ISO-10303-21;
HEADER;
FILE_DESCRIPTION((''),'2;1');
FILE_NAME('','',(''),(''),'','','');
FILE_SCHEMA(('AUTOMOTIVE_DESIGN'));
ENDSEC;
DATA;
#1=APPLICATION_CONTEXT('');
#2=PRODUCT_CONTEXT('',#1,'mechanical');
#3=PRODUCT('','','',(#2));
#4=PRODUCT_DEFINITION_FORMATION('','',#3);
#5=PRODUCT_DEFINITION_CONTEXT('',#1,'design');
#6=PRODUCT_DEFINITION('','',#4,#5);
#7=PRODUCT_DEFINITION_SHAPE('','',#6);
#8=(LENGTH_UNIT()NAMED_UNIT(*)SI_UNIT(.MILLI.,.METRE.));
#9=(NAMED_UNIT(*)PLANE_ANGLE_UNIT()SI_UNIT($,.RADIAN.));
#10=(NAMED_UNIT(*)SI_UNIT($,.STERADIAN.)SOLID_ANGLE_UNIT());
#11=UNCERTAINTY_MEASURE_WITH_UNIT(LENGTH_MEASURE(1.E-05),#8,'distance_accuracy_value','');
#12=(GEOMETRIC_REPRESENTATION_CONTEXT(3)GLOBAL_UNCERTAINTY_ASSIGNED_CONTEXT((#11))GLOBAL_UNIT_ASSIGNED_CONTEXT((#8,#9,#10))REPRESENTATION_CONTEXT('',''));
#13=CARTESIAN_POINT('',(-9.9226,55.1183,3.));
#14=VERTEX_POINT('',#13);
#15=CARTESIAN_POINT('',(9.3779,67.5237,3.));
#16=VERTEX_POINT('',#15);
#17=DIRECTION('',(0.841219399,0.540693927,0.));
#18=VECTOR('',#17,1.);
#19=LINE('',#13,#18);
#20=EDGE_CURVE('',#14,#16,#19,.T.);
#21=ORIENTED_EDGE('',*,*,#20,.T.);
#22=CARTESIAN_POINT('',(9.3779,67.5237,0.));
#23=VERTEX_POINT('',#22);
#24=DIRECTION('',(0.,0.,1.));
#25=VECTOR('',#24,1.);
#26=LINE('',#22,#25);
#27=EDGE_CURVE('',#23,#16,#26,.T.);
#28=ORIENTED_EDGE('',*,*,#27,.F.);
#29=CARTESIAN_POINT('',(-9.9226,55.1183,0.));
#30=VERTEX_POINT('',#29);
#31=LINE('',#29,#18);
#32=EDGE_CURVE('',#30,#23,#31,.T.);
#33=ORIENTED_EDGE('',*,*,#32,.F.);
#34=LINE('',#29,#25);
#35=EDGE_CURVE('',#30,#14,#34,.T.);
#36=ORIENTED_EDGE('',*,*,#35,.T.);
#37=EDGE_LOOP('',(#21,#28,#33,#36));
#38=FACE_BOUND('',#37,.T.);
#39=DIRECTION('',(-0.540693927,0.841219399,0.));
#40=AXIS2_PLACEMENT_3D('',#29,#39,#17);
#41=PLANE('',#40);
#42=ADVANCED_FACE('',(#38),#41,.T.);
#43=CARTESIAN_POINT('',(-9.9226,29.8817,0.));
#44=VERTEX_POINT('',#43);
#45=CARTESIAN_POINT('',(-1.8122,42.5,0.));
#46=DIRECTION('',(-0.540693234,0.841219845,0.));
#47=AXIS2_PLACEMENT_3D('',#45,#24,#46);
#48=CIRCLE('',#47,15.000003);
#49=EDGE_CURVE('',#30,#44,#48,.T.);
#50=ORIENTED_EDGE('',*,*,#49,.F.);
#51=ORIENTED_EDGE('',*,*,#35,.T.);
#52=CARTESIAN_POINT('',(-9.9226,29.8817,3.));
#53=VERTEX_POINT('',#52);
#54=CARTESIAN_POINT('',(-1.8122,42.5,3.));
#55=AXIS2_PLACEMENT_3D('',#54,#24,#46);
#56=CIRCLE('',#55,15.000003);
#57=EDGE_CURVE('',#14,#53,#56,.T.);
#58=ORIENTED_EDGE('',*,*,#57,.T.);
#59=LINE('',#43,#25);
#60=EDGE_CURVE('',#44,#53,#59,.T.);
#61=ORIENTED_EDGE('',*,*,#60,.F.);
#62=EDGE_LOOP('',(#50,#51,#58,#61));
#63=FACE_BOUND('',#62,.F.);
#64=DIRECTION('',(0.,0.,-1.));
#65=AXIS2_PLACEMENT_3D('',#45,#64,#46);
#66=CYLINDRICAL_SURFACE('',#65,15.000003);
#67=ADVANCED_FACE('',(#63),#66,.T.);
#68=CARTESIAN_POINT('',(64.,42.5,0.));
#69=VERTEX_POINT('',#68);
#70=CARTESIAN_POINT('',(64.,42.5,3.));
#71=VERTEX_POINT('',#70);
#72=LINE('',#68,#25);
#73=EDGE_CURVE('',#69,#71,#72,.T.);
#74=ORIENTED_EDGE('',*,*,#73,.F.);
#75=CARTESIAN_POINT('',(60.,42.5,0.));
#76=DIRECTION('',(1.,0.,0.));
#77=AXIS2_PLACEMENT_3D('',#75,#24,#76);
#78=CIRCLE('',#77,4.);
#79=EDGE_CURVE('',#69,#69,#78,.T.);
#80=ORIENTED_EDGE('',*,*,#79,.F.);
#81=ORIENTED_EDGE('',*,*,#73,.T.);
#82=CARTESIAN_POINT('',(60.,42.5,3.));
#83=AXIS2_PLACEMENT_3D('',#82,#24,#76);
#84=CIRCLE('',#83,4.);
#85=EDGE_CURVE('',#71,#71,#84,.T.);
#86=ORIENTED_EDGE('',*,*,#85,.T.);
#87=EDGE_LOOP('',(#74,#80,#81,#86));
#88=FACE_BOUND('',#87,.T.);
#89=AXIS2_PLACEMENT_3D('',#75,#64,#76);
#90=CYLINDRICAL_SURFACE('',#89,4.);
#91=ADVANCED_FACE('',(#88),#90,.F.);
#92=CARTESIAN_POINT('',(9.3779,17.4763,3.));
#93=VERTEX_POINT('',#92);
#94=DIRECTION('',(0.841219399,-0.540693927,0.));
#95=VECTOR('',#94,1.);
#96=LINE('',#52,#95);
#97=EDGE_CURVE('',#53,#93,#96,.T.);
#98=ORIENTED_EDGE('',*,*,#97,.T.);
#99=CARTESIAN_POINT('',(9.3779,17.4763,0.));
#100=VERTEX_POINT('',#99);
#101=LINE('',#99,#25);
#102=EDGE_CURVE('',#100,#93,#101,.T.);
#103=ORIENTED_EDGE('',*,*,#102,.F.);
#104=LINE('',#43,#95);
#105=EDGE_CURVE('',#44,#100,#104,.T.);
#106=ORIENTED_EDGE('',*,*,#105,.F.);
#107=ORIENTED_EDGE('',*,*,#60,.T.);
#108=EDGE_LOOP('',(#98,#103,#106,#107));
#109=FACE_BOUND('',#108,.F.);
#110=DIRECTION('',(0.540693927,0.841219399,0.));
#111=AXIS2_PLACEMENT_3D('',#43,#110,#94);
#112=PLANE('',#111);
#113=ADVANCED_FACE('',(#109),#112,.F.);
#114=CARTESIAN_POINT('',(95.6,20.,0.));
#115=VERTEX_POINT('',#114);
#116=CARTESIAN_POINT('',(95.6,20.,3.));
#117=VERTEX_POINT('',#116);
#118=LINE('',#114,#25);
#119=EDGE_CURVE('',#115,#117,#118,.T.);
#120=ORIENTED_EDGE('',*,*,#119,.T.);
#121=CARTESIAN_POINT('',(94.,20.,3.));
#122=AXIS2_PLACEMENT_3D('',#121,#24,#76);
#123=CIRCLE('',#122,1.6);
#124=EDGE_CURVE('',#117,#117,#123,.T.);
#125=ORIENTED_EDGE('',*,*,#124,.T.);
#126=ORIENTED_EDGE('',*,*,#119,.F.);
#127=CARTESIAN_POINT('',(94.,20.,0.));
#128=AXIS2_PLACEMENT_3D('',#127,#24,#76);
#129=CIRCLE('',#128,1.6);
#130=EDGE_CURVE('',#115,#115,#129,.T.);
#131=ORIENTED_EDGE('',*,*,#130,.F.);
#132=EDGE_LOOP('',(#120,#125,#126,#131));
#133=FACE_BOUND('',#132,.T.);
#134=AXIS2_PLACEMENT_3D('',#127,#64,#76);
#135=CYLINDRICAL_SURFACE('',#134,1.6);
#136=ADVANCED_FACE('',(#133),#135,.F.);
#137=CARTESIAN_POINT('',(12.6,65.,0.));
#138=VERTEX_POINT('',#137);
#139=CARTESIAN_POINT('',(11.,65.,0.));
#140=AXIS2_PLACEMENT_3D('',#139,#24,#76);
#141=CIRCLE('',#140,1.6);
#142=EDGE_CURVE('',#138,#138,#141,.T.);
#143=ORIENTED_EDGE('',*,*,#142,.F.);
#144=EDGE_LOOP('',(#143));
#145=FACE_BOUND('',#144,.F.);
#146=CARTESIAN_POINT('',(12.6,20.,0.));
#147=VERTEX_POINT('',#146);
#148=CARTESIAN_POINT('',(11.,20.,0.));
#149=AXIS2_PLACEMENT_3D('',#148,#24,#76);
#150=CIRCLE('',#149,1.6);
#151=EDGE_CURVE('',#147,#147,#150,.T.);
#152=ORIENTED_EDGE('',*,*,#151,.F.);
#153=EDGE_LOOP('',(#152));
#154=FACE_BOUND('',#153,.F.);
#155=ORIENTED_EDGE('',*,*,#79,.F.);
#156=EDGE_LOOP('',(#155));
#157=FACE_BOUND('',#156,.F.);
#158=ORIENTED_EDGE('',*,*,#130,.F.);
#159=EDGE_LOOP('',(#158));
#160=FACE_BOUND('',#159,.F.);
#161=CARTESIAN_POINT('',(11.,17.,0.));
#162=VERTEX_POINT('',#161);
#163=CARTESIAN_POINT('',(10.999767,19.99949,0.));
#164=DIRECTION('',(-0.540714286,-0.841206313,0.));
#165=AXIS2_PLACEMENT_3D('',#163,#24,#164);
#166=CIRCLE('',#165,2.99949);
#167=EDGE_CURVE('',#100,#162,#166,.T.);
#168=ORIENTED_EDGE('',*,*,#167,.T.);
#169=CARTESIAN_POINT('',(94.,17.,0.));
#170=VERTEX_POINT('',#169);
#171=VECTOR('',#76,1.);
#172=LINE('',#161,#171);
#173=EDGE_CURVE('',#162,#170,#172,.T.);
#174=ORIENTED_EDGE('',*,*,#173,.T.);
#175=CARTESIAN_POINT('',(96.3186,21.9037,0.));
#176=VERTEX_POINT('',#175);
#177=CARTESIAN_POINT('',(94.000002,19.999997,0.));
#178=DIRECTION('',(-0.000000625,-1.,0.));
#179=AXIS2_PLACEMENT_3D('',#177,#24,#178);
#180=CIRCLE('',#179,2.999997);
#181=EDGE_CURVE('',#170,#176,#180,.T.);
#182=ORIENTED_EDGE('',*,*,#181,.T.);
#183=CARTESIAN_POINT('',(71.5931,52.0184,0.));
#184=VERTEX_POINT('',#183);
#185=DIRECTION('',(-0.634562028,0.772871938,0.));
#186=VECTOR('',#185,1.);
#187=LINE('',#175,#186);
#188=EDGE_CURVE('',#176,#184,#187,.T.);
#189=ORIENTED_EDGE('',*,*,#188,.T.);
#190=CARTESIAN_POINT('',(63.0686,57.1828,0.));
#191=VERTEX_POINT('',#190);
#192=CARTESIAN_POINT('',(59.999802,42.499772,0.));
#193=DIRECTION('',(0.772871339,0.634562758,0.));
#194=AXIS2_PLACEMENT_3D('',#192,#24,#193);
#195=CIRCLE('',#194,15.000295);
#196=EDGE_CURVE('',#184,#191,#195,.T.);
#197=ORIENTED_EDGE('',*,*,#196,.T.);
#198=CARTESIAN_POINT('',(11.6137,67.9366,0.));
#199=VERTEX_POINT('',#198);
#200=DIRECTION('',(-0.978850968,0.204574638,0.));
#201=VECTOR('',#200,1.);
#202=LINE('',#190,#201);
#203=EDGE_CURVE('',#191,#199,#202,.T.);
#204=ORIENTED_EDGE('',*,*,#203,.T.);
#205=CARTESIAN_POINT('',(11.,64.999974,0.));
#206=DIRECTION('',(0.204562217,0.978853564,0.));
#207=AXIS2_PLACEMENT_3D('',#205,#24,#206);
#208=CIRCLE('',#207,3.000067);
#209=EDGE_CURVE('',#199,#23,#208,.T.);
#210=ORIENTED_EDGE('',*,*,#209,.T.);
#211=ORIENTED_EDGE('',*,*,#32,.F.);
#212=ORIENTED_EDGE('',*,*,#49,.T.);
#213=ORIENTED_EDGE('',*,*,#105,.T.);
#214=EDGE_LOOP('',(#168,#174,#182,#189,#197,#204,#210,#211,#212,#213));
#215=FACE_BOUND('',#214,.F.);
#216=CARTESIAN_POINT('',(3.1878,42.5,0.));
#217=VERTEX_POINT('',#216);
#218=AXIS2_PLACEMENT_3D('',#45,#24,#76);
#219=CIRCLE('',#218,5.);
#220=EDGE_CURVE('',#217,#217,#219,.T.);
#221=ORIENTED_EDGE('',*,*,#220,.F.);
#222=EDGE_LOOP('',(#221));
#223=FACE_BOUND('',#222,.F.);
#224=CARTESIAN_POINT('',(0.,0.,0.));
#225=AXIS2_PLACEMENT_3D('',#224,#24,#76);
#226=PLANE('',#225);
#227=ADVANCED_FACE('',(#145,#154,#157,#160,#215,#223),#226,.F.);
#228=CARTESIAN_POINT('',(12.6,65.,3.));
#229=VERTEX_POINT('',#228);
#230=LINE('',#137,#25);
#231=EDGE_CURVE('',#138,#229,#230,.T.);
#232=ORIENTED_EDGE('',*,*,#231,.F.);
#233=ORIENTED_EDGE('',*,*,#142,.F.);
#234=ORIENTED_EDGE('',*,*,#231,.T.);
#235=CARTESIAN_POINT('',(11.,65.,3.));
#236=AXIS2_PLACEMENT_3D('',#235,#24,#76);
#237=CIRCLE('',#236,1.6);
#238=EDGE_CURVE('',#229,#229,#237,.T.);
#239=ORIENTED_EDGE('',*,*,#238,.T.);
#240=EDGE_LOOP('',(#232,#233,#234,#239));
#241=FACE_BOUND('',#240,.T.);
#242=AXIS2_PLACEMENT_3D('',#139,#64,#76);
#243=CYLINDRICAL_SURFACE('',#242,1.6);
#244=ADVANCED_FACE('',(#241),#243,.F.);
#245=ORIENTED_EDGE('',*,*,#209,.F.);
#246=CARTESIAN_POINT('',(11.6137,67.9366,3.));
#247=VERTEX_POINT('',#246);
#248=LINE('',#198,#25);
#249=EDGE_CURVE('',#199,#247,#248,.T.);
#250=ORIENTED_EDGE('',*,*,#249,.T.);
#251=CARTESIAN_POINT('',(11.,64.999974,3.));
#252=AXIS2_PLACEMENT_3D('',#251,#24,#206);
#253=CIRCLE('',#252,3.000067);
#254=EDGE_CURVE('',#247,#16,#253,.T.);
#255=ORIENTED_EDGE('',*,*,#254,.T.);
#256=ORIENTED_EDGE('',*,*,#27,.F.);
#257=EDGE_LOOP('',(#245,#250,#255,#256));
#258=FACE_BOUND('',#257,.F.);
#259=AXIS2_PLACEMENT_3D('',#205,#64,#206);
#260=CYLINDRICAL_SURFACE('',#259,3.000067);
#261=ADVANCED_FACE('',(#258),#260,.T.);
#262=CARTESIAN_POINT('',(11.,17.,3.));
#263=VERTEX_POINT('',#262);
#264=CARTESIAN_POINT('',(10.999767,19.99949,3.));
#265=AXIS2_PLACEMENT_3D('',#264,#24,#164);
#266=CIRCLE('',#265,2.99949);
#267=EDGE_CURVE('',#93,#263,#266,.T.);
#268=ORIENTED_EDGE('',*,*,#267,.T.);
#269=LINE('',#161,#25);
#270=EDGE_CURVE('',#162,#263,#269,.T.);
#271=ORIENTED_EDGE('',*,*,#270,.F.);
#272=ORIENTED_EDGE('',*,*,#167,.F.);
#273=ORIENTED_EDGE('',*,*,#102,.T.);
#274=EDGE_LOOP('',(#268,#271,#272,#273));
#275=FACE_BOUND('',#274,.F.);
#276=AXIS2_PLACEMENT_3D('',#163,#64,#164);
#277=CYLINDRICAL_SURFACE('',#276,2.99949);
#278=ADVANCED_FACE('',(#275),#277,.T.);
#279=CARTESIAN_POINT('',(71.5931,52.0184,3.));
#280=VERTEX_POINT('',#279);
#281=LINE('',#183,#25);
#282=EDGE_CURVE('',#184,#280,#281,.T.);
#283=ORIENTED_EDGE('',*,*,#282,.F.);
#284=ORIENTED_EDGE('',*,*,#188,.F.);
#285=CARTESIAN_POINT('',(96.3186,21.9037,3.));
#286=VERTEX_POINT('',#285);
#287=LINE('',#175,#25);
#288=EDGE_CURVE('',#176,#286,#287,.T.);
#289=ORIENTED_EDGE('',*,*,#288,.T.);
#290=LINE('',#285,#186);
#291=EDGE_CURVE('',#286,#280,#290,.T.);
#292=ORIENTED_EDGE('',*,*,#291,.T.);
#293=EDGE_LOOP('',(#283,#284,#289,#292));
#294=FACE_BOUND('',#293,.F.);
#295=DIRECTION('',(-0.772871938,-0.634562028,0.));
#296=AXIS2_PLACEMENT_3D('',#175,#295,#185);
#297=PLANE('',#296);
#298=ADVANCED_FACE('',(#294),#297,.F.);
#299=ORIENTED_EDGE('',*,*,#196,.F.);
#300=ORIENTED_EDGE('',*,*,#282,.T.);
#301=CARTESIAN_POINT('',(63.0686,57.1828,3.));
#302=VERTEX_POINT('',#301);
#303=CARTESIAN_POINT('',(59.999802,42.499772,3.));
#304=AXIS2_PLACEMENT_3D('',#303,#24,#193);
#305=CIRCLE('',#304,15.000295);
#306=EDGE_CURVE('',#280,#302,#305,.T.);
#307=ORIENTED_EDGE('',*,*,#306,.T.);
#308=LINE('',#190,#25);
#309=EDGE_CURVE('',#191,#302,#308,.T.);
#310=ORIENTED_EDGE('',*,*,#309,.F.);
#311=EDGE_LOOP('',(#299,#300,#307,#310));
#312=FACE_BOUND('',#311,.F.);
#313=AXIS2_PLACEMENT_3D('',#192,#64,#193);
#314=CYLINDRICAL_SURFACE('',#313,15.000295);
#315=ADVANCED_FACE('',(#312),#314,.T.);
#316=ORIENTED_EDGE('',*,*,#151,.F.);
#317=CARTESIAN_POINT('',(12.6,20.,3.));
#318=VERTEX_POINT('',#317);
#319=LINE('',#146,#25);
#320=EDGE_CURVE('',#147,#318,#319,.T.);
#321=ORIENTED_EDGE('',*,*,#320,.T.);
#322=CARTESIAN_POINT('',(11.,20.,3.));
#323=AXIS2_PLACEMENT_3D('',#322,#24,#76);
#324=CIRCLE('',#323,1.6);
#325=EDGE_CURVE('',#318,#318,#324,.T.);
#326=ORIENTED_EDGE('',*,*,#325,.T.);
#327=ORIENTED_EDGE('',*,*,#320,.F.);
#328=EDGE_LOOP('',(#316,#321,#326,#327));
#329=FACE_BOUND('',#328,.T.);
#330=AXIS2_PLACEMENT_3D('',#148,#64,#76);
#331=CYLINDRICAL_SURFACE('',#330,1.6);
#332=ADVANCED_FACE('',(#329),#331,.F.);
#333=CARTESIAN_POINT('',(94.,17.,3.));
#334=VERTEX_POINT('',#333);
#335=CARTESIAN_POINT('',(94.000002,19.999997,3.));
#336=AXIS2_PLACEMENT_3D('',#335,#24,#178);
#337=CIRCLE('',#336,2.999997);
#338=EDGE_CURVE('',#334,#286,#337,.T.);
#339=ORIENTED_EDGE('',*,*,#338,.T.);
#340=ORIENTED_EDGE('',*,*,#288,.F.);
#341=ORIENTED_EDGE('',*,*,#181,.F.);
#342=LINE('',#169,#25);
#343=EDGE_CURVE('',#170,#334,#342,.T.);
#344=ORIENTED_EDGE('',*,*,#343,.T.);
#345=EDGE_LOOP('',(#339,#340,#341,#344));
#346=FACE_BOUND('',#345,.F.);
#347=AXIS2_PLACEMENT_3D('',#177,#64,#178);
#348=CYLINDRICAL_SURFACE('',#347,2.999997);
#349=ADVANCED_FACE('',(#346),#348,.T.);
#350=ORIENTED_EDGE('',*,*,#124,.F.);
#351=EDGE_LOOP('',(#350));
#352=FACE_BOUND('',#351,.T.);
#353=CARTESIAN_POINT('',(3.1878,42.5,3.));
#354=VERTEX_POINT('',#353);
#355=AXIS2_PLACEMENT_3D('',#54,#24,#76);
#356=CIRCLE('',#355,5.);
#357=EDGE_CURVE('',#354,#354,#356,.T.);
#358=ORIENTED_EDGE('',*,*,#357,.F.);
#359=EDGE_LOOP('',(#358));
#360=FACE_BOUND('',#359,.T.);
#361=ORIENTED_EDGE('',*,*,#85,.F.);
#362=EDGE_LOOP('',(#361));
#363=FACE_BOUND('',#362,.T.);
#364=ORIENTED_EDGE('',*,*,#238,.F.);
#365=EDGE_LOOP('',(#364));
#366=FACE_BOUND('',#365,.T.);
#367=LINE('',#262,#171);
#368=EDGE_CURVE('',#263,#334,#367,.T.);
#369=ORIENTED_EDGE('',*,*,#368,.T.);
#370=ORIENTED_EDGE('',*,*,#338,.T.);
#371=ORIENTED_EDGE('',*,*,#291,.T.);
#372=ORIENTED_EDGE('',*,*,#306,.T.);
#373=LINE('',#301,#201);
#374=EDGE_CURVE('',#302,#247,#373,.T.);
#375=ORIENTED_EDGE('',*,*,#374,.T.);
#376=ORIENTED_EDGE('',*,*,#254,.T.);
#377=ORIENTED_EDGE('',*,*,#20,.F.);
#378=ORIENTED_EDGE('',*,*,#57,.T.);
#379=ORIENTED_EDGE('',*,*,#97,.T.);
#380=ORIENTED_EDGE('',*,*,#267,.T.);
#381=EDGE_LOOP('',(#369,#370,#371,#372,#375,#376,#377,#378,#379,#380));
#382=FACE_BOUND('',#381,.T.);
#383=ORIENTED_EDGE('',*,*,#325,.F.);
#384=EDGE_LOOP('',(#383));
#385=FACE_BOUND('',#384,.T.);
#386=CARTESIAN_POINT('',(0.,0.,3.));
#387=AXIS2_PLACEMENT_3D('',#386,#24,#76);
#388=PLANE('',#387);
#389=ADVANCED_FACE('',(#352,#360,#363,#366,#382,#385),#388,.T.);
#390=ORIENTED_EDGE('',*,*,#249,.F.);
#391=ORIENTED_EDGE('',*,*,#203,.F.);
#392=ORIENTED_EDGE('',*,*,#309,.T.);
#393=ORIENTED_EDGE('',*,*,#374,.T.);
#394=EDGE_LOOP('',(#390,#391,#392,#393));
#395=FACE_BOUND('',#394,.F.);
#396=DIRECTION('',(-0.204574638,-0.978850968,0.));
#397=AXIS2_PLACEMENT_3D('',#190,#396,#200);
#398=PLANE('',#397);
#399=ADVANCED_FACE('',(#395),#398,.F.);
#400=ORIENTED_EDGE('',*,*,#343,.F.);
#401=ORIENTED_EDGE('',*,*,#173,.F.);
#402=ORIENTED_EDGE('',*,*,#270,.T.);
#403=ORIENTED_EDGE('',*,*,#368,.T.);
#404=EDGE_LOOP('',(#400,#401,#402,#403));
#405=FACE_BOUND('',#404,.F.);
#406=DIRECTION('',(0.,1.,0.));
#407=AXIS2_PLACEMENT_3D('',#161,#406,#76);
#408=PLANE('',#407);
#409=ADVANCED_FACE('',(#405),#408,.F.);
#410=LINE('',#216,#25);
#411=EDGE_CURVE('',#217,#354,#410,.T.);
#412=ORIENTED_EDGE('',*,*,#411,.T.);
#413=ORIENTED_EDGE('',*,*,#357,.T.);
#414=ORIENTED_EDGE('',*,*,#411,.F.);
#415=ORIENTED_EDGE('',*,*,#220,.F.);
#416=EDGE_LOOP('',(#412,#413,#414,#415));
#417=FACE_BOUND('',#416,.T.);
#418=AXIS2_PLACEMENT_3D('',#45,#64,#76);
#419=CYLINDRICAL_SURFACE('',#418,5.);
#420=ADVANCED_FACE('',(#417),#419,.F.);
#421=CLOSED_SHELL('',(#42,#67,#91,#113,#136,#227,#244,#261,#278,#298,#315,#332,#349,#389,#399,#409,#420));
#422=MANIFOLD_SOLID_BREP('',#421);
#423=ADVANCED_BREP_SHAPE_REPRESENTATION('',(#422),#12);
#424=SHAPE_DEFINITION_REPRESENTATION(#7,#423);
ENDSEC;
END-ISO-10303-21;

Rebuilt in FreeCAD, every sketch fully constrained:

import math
import FreeCAD as App
import Part
import Sketcher
from FreeCAD import Vector
Q = App.Units.Quantity

doc = App.newDocument("Part")
body = doc.addObject("PartDesign::Body", "Body")

sketch1 = doc.addObject("Sketcher::SketchObject", "Sketch")
body.addObject(sketch1)
sketch1.AttachmentSupport = (doc.XY_Plane, [""])
sketch1.MapMode = "FlatFace"
sketch1.addGeometry(Part.LineSegment(Vector(11, 17, 0), Vector(94, 17, 0)), False)
sketch1.addGeometry(Part.ArcOfCircle(Part.Circle(Vector(94, 20, 0), Vector(0, 0, 1), 3), math.radians(-90), math.radians(39)), False)
sketch1.addGeometry(Part.LineSegment(Vector(96.3, 21.9, 0), Vector(71.6, 52, 0)), False)
sketch1.addGeometry(Part.ArcOfCircle(Part.Circle(Vector(60, 42.5, 0), Vector(0, 0, 1), 15), math.radians(39), math.radians(78)), False)
sketch1.addGeometry(Part.LineSegment(Vector(63.1, 57.2, 0), Vector(11.6, 67.9, 0)), False)
sketch1.addGeometry(Part.ArcOfCircle(Part.Circle(Vector(11, 65, 0), Vector(0, 0, 1), 3), math.radians(78), math.radians(123)), False)
sketch1.addGeometry(Part.LineSegment(Vector(9.4, 67.5, 0), Vector(-9.9, 55.1, 0)), False)
sketch1.addGeometry(Part.ArcOfCircle(Part.Circle(Vector(-1.8, 42.5, 0), Vector(0, 0, 1), 15), math.radians(123), math.radians(237)), False)
sketch1.addGeometry(Part.LineSegment(Vector(-9.9, 29.9, 0), Vector(9.4, 17.5, 0)), False)
sketch1.addGeometry(Part.ArcOfCircle(Part.Circle(Vector(11, 20, 0), Vector(0, 0, 1), 3), math.radians(-123), math.radians(-90)), False)
sketch1.addGeometry(Part.Circle(Vector(11, 20, 0), Vector(0, 0, 1), 1.6), False)
sketch1.addGeometry(Part.Circle(Vector(94, 20, 0), Vector(0, 0, 1), 1.6), False)
sketch1.addGeometry(Part.Circle(Vector(-1.8, 42.5, 0), Vector(0, 0, 1), 5), False)
sketch1.addGeometry(Part.Circle(Vector(11, 65, 0), Vector(0, 0, 1), 1.6), False)
sketch1.addGeometry(Part.Circle(Vector(60, 42.5, 0), Vector(0, 0, 1), 4), False)
sketch1.addConstraint(Sketcher.Constraint("Tangent", 0, 2, 1, 1))
sketch1.addConstraint(Sketcher.Constraint("Tangent", 1, 2, 2, 1))
sketch1.addConstraint(Sketcher.Constraint("Tangent", 2, 2, 3, 1))
sketch1.addConstraint(Sketcher.Constraint("Tangent", 3, 2, 4, 1))
sketch1.addConstraint(Sketcher.Constraint("Tangent", 4, 2, 5, 1))
sketch1.addConstraint(Sketcher.Constraint("Tangent", 5, 2, 6, 1))
sketch1.addConstraint(Sketcher.Constraint("Tangent", 6, 2, 7, 1))
sketch1.addConstraint(Sketcher.Constraint("Tangent", 7, 2, 8, 1))
sketch1.addConstraint(Sketcher.Constraint("Tangent", 8, 2, 9, 1))
sketch1.addConstraint(Sketcher.Constraint("Tangent", 9, 2, 0, 1))
sketch1.addConstraint(Sketcher.Constraint("Horizontal", 0))
sketch1.addConstraint(Sketcher.Constraint("Coincident", 10, 3, 9, 3))
sketch1.addConstraint(Sketcher.Constraint("Coincident", 11, 3, 1, 3))
sketch1.addConstraint(Sketcher.Constraint("Coincident", 12, 3, 7, 3))
sketch1.addConstraint(Sketcher.Constraint("Coincident", 13, 3, 5, 3))
sketch1.addConstraint(Sketcher.Constraint("Coincident", 14, 3, 3, 3))
sketch1.addConstraint(Sketcher.Constraint("Equal", 1, 5))
sketch1.addConstraint(Sketcher.Constraint("Equal", 3, 7))
sketch1.addConstraint(Sketcher.Constraint("Equal", 5, 9))
sketch1.addConstraint(Sketcher.Constraint("Equal", 10, 11))
sketch1.addConstraint(Sketcher.Constraint("Equal", 11, 13))
sketch1.addConstraint(Sketcher.Constraint("Horizontal", 3, 3, 7, 3))
sketch1.addConstraint(Sketcher.Constraint("Vertical", 5, 3, 9, 3))
sketch1.addConstraint(Sketcher.Constraint("Vertical", 6, 2, 7, 2))
sketch1.addConstraint(Sketcher.Constraint("Diameter", 12, Q("10 mm")))
sketch1.addConstraint(Sketcher.Constraint("Diameter", 14, Q("8 mm")))
sketch1.addConstraint(Sketcher.Constraint("Radius", 1, Q("3 mm")))
sketch1.addConstraint(Sketcher.Constraint("Radius", 3, Q("15 mm")))
sketch1.addConstraint(Sketcher.Constraint("Diameter", 10, Q("3.2 mm")))
sketch1.addConstraint(Sketcher.Constraint("DistanceX", 0, 1, 0, 2, Q("83 mm")))
sketch1.addConstraint(Sketcher.Constraint("DistanceX", -1, 1, 1, 3, Q("94 mm")))
sketch1.addConstraint(Sketcher.Constraint("DistanceY", -1, 1, 1, 3, Q("20 mm")))
sketch1.addConstraint(Sketcher.Constraint("DistanceX", -1, 1, 3, 3, Q("60 mm")))
sketch1.addConstraint(Sketcher.Constraint("DistanceY", -1, 1, 5, 3, Q("65 mm")))
sketch1.addConstraint(Sketcher.Constraint("Angle", 6, Q("-147.269 deg")))
pad1 = doc.addObject("PartDesign::Pad", "Pad")
body.addObject(pad1)
pad1.Profile = sketch1
pad1.Length = 3

doc.recompute()
